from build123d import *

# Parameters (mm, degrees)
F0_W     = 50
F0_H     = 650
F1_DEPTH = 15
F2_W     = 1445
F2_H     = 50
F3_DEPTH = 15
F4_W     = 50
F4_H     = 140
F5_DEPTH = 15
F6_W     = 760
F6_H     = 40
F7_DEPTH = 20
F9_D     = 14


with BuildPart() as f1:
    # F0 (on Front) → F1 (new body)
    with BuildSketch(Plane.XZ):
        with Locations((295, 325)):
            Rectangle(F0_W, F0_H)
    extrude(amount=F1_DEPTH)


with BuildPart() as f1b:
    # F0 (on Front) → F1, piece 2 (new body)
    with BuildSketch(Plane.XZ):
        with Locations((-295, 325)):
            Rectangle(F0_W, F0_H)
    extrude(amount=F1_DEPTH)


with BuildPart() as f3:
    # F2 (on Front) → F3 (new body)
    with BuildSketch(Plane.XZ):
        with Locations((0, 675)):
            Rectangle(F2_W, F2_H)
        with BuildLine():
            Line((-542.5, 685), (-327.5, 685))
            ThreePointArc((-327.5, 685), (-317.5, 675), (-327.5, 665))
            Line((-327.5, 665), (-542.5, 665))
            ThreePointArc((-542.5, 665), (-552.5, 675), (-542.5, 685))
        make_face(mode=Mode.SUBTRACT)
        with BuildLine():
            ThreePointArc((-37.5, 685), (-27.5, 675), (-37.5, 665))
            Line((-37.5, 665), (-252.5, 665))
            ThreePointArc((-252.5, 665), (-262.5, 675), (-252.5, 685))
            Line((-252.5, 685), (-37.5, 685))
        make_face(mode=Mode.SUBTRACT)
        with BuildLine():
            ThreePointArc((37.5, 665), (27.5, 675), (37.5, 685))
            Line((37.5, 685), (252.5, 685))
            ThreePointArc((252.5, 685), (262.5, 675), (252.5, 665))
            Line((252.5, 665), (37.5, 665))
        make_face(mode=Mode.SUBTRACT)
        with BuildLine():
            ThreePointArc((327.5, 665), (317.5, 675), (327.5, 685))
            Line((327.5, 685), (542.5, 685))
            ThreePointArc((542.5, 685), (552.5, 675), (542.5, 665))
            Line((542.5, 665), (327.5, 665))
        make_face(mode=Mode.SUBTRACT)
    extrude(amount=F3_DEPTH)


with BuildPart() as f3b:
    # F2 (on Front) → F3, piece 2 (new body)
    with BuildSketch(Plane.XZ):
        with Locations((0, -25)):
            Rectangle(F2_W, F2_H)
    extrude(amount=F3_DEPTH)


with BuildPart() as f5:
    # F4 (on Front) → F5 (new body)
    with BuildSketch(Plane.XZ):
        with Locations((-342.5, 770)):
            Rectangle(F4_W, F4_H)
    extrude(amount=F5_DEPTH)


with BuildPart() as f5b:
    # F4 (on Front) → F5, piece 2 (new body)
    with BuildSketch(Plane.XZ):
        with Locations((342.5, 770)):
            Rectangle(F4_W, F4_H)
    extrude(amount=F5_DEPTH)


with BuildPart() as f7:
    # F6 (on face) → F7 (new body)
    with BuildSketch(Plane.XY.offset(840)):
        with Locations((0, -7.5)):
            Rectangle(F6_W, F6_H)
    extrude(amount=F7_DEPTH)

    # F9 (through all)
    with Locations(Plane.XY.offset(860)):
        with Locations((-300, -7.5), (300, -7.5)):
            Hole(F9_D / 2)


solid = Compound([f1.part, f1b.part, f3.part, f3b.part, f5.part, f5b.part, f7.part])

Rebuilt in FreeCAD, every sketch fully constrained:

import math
import FreeCAD as App
import Part
import Sketcher

V = App.Vector

doc = App.newDocument("Part")
body = doc.addObject("PartDesign::Body", "Body")

# Sketch on XZ plane
sketch1 = body.newObject("Sketcher::SketchObject", "Sketch")
sketch1.AttachmentSupport = (doc.getObject("XZ_Plane"), [""])
sketch1.MapMode = "FlatFace"
sketch1.addGeometry([
    Part.LineSegment(V(270, 650, 0), V(270, 0, 0)),
    Part.LineSegment(V(270, 0, 0), V(320, 0, 0)),
    Part.LineSegment(V(320, 0, 0), V(320, 650, 0)),
    Part.LineSegment(V(320, 650, 0), V(270, 650, 0)),
], False)
sketch1.addConstraint([
    Sketcher.Constraint("Coincident", 0, 2, 1, 1),
    Sketcher.Constraint("Coincident", 1, 2, 2, 1),
    Sketcher.Constraint("Coincident", 2, 2, 3, 1),
    Sketcher.Constraint("Coincident", 3, 2, 0, 1),
    Sketcher.Constraint("Vertical", 0),
    Sketcher.Constraint("Horizontal", 1),
    Sketcher.Constraint("Vertical", 2),
    Sketcher.Constraint("Horizontal", 3),
    Sketcher.Constraint("PointOnObject", 0, 2, -1),
    Sketcher.Constraint("DistanceX", 1, 1, 1, 2, 50.0),
    Sketcher.Constraint("DistanceY", 0, 2, 0, 1, 650.0),
    Sketcher.Constraint("DistanceX", -1, 1, 0, 2, 270.0),
])
pad1 = body.newObject("PartDesign::Pad", "Pad")
pad1.Profile = sketch1
pad1.Length = 15
body2 = doc.addObject("PartDesign::Body", "Body001")

# Sketch on XZ plane
sketch2 = body2.newObject("Sketcher::SketchObject", "Sketch001")
sketch2.AttachmentSupport = (doc.getObject("XZ_Plane001"), [""])
sketch2.MapMode = "FlatFace"
sketch2.addGeometry([
    Part.LineSegment(V(-320, 650, 0), V(-320, 0, 0)),
    Part.LineSegment(V(-320, 0, 0), V(-270, 0, 0)),
    Part.LineSegment(V(-270, 0, 0), V(-270, 650, 0)),
    Part.LineSegment(V(-270, 650, 0), V(-320, 650, 0)),
], False)
sketch2.addConstraint([
    Sketcher.Constraint("Coincident", 0, 2, 1, 1),
    Sketcher.Constraint("Coincident", 1, 2, 2, 1),
    Sketcher.Constraint("Coincident", 2, 2, 3, 1),
    Sketcher.Constraint("Coincident", 3, 2, 0, 1),
    Sketcher.Constraint("Vertical", 0),
    Sketcher.Constraint("Horizontal", 1),
    Sketcher.Constraint("Vertical", 2),
    Sketcher.Constraint("Horizontal", 3),
    Sketcher.Constraint("PointOnObject", 0, 2, -1),
    Sketcher.Constraint("DistanceX", 1, 1, 1, 2, 50.0),
    Sketcher.Constraint("DistanceY", 0, 2, 0, 1, 650.0),
    Sketcher.Constraint("DistanceX", 0, 2, -1, 1, 320.0),
])
pad2 = body2.newObject("PartDesign::Pad", "Pad001")
pad2.Profile = sketch2
pad2.Length = 15
body3 = doc.addObject("PartDesign::Body", "Body002")

# Sketch on XZ plane
sketch3 = body3.newObject("Sketcher::SketchObject", "Sketch002")
sketch3.AttachmentSupport = (doc.getObject("XZ_Plane002"), [""])
sketch3.MapMode = "FlatFace"
sketch3.addGeometry([
    Part.LineSegment(V(-722, 700, 0), V(-722, 650, 0)),  # 0
    Part.LineSegment(V(-722, 650, 0), V(722, 650, 0)),  # 1
    Part.LineSegment(V(722, 650, 0), V(722, 700, 0)),  # 2
    Part.LineSegment(V(722, 700, 0), V(-722, 700, 0)),  # 3
    Part.ArcOfCircle(Part.Circle(V(-542, 675, 0), V(0, 0, 1), 10), math.radians(90), math.radians(270)),  # 4
    Part.LineSegment(V(-542, 685, 0), V(-328, 685, 0)),  # 5
    Part.ArcOfCircle(Part.Circle(V(-328, 675, 0), V(0, 0, 1), 10), math.radians(-90), math.radians(90)),  # 6
    Part.LineSegment(V(-328, 665, 0), V(-542, 665, 0)),  # 7
    Part.LineSegment(V(-252, 685, 0), V(-38, 685, 0)),  # 8
    Part.ArcOfCircle(Part.Circle(V(-38, 675, 0), V(0, 0, 1), 10), math.radians(-90), math.radians(90)),  # 9
    Part.LineSegment(V(-38, 665, 0), V(-252, 665, 0)),  # 10
    Part.ArcOfCircle(Part.Circle(V(-252, 675, 0), V(0, 0, 1), 10), math.radians(90), math.radians(270)),  # 11
    Part.LineSegment(V(252, 665, 0), V(38, 665, 0)),  # 12
    Part.ArcOfCircle(Part.Circle(V(38, 675, 0), V(0, 0, 1), 10), math.radians(90), math.radians(270)),  # 13
    Part.LineSegment(V(38, 685, 0), V(252, 685, 0)),  # 14
    Part.ArcOfCircle(Part.Circle(V(252, 675, 0), V(0, 0, 1), 10), math.radians(-90), math.radians(90)),  # 15
    Part.LineSegment(V(542, 665, 0), V(328, 665, 0)),  # 16
    Part.ArcOfCircle(Part.Circle(V(328, 675, 0), V(0, 0, 1), 10), math.radians(90), math.radians(270)),  # 17
    Part.LineSegment(V(328, 685, 0), V(542, 685, 0)),  # 18
    Part.ArcOfCircle(Part.Circle(V(542, 675, 0), V(0, 0, 1), 10), math.radians(-90), math.radians(90)),  # 19
], False)
sketch3.addConstraint([
    Sketcher.Constraint("Coincident", 0, 2, 1, 1),
    Sketcher.Constraint("Coincident", 1, 2, 2, 1),
    Sketcher.Constraint("Coincident", 2, 2, 3, 1),
    Sketcher.Constraint("Coincident", 3, 2, 0, 1),
    Sketcher.Constraint("Tangent", 4, 1, 5, 1),
    Sketcher.Constraint("Tangent", 5, 2, 6, 2),
    Sketcher.Constraint("Tangent", 6, 1, 7, 1),
    Sketcher.Constraint("Tangent", 7, 2, 4, 2),
    Sketcher.Constraint("Tangent", 8, 2, 9, 2),
    Sketcher.Constraint("Tangent", 9, 1, 10, 1),
    Sketcher.Constraint("Tangent", 10, 2, 11, 2),
    Sketcher.Constraint("Tangent", 11, 1, 8, 1),
    Sketcher.Constraint("Tangent", 12, 2, 13, 2),
    Sketcher.Constraint("Tangent", 13, 1, 14, 1),
    Sketcher.Constraint("Tangent", 14, 2, 15, 2),
    Sketcher.Constraint("Tangent", 15, 1, 12, 1),
    Sketcher.Constraint("Tangent", 16, 2, 17, 2),
    Sketcher.Constraint("Tangent", 17, 1, 18, 1),
    Sketcher.Constraint("Tangent", 18, 2, 19, 2),
    Sketcher.Constraint("Tangent", 19, 1, 16, 1),
    Sketcher.Constraint("Vertical", 0),
    Sketcher.Constraint("Horizontal", 1),
    Sketcher.Constraint("Vertical", 2),
    Sketcher.Constraint("Horizontal", 3),
    Sketcher.Constraint("Horizontal", 5),
    Sketcher.Constraint("Horizontal", 7),
    Sketcher.Constraint("Horizontal", 8),
    Sketcher.Constraint("Horizontal", 10),
    Sketcher.Constraint("Horizontal", 12),
    Sketcher.Constraint("Horizontal", 14),
    Sketcher.Constraint("Horizontal", 16),
    Sketcher.Constraint("Horizontal", 18),
    Sketcher.Constraint("Equal", 6, 9),
    Sketcher.Constraint("Equal", 11, 13),
    Sketcher.Constraint("Equal", 15, 17),
    Sketcher.Constraint("Symmetric", 9, 3, 13, 3, -2),
    Sketcher.Constraint("Symmetric", 6, 3, 17, 3, -2),
    Sketcher.Constraint("Horizontal", 6, 3, 9, 3),
    Sketcher.Constraint("Equal", 7, 8),
    Sketcher.Constraint("Equal", 10, 12),
    Sketcher.Constraint("Equal", 14, 16),
    Sketcher.Constraint("Radius", 4, 10.0),
    Sketcher.Constraint("DistanceX", 1, 1, 1, 2, 1445.0),
    Sketcher.Constraint("DistanceX", 5, 1, 5, 2, 215.0),
    Sketcher.Constraint("DistanceY", 0, 2, 0, 1, 50.0),
    Sketcher.Constraint("DistanceY", -1, 1, 4, 3, 675.0),
    Sketcher.Constraint("DistanceY", -1, 1, 0, 2, 650.0),
    Sketcher.Constraint("DistanceX", 6, 3, 9, 3, 290.0),
    Sketcher.Constraint("DistanceX", 9, 3, 13, 3, 75.0),
    Sketcher.Constraint("DistanceX", 0, 2, 4, 3, 180.0),
])
pad3 = body3.newObject("PartDesign::Pad", "Pad002")
pad3.Profile = sketch3
pad3.Length = 15
body4 = doc.addObject("PartDesign::Body", "Body003")

# Sketch on XZ plane
sketch4 = body4.newObject("Sketcher::SketchObject", "Sketch003")
sketch4.AttachmentSupport = (doc.getObject("XZ_Plane003"), [""])
sketch4.MapMode = "FlatFace"
sketch4.addGeometry([
    Part.LineSegment(V(-722, 0, 0), V(-722, -50, 0)),
    Part.LineSegment(V(-722, -50, 0), V(722, -50, 0)),
    Part.LineSegment(V(722, -50, 0), V(722, 0, 0)),
    Part.LineSegment(V(722, 0, 0), V(-722, 0, 0)),
], False)
sketch4.addConstraint([
    Sketcher.Constraint("Coincident", 0, 2, 1, 1),
    Sketcher.Constraint("Coincident", 1, 2, 2, 1),
    Sketcher.Constraint("Coincident", 2, 2, 3, 1),
    Sketcher.Constraint("Coincident", 3, 2, 0, 1),
    Sketcher.Constraint("Vertical", 0),
    Sketcher.Constraint("Horizontal", 1),
    Sketcher.Constraint("Vertical", 2),
    Sketcher.Constraint("Horizontal", 3),
    Sketcher.Constraint("Symmetric", 2, 2, 3, 2, -1, 1),
    Sketcher.Constraint("DistanceX", 1, 1, 1, 2, 1445.0),
    Sketcher.Constraint("DistanceY", 0, 2, 0, 1, 50.0),
])
pad4 = body4.newObject("PartDesign::Pad", "Pad003")
pad4.Profile = sketch4
pad4.Length = 15
body5 = doc.addObject("PartDesign::Body", "Body004")

# Sketch on XZ plane
sketch5 = body5.newObject("Sketcher::SketchObject", "Sketch004")
sketch5.AttachmentSupport = (doc.getObject("XZ_Plane004"), [""])
sketch5.MapMode = "FlatFace"
sketch5.addGeometry([
    Part.LineSegment(V(-368, 840, 0), V(-368, 700, 0)),
    Part.LineSegment(V(-368, 700, 0), V(-318, 700, 0)),
    Part.LineSegment(V(-318, 700, 0), V(-318, 840, 0)),
    Part.LineSegment(V(-318, 840, 0), V(-368, 840, 0)),
], False)
sketch5.addConstraint([
    Sketcher.Constraint("Coincident", 0, 2, 1, 1),
    Sketcher.Constraint("Coincident", 1, 2, 2, 1),
    Sketcher.Constraint("Coincident", 2, 2, 3, 1),
    Sketcher.Constraint("Coincident", 3, 2, 0, 1),
    Sketcher.Constraint("Vertical", 0),
    Sketcher.Constraint("Horizontal", 1),
    Sketcher.Constraint("Vertical", 2),
    Sketcher.Constraint("Horizontal", 3),
    Sketcher.Constraint("DistanceX", 1, 1, 1, 2, 50.0),
    Sketcher.Constraint("DistanceY", 0, 2, 0, 1, 140.0),
    Sketcher.Constraint("DistanceY", -1, 1, 0, 2, 700.0),
    Sketcher.Constraint("DistanceX", 0, 2, -1, 1, 367.5),
])
pad5 = body5.newObject("PartDesign::Pad", "Pad004")
pad5.Profile = sketch5
pad5.Length = 15
body6 = doc.addObject("PartDesign::Body", "Body005")

# Sketch on XZ plane
sketch6 = body6.newObject("Sketcher::SketchObject", "Sketch005")
sketch6.AttachmentSupport = (doc.getObject("XZ_Plane005"), [""])
sketch6.MapMode = "FlatFace"
sketch6.addGeometry([
    Part.LineSegment(V(318, 840, 0), V(318, 700, 0)),
    Part.LineSegment(V(318, 700, 0), V(368, 700, 0)),
    Part.LineSegment(V(368, 700, 0), V(368, 840, 0)),
    Part.LineSegment(V(368, 840, 0), V(318, 840, 0)),
], False)
sketch6.addConstraint([
    Sketcher.Constraint("Coincident", 0, 2, 1, 1),
    Sketcher.Constraint("Coincident", 1, 2, 2, 1),
    Sketcher.Constraint("Coincident", 2, 2, 3, 1),
    Sketcher.Constraint("Coincident", 3, 2, 0, 1),
    Sketcher.Constraint("Vertical", 0),
    Sketcher.Constraint("Horizontal", 1),
    Sketcher.Constraint("Vertical", 2),
    Sketcher.Constraint("Horizontal", 3),
    Sketcher.Constraint("DistanceX", 1, 1, 1, 2, 50.0),
    Sketcher.Constraint("DistanceY", 0, 2, 0, 1, 140.0),
    Sketcher.Constraint("DistanceY", -1, 1, 0, 2, 700.0),
    Sketcher.Constraint("DistanceX", -1, 1, 0, 2, 317.5),
])
pad6 = body6.newObject("PartDesign::Pad", "Pad005")
pad6.Profile = sketch6
pad6.Length = 15
body7 = doc.addObject("PartDesign::Body", "Body006")

# Sketch on XY plane
sketch7 = body7.newObject("Sketcher::SketchObject", "Sketch006")
sketch7.AttachmentSupport = (doc.getObject("XY_Plane006"), [""])
sketch7.MapMode = "FlatFace"
sketch7.AttachmentOffset = App.Placement(V(0, 0, 840), App.Rotation())
sketch7.addGeometry([
    Part.LineSegment(V(-380, 12, 0), V(-380, -28, 0)),
    Part.LineSegment(V(-380, -28, 0), V(380, -28, 0)),
    Part.LineSegment(V(380, -28, 0), V(380, 12, 0)),
    Part.LineSegment(V(380, 12, 0), V(-380, 12, 0)),
], False)
sketch7.addConstraint([
    Sketcher.Constraint("Coincident", 0, 2, 1, 1),
    Sketcher.Constraint("Coincident", 1, 2, 2, 1),
    Sketcher.Constraint("Coincident", 2, 2, 3, 1),
    Sketcher.Constraint("Coincident", 3, 2, 0, 1),
    Sketcher.Constraint("Vertical", 0),
    Sketcher.Constraint("Horizontal", 1),
    Sketcher.Constraint("Vertical", 2),
    Sketcher.Constraint("Horizontal", 3),
    Sketcher.Constraint("DistanceX", 1, 1, 1, 2, 760.0),
    Sketcher.Constraint("DistanceY", 0, 2, 0, 1, 40.0),
    Sketcher.Constraint("DistanceX", 0, 2, -1, 1, 380.0),
    Sketcher.Constraint("DistanceY", 0, 2, -1, 1, 27.5),
])
pad7 = body7.newObject("PartDesign::Pad", "Pad006")
pad7.Profile = sketch7
pad7.Length = 20

# Sketch on XY plane
sketch8 = body7.newObject("Sketcher::SketchObject", "Sketch007")
sketch8.AttachmentSupport = (doc.getObject("XY_Plane006"), [""])
sketch8.MapMode = "FlatFace"
sketch8.AttachmentOffset = App.Placement(V(0, 0, 860), App.Rotation())
sketch8.addGeometry([
    Part.Circle(V(-300, -8, 0), V(0, 0, 1), 7),
    Part.Circle(V(300, -8, 0), V(0, 0, 1), 7),
], False)
sketch8.addConstraint([
    Sketcher.Constraint("Equal", 0, 1),
    Sketcher.Constraint("Symmetric", 0, 3, 1, 3, -2),
    Sketcher.Constraint("Diameter", 0, 14.0),
    Sketcher.Constraint("DistanceX", 0, 3, -1, 1, 300.0),
    Sketcher.Constraint("DistanceY", 0, 3, -1, 1, 7.5),
])
doc.recompute()
hole = body7.newObject("PartDesign::Hole", "Hole")
hole.Profile = sketch8
hole.ThreadType = "None"
hole.Diameter = 14
hole.DepthType = "ThroughAll"

doc.recompute()
